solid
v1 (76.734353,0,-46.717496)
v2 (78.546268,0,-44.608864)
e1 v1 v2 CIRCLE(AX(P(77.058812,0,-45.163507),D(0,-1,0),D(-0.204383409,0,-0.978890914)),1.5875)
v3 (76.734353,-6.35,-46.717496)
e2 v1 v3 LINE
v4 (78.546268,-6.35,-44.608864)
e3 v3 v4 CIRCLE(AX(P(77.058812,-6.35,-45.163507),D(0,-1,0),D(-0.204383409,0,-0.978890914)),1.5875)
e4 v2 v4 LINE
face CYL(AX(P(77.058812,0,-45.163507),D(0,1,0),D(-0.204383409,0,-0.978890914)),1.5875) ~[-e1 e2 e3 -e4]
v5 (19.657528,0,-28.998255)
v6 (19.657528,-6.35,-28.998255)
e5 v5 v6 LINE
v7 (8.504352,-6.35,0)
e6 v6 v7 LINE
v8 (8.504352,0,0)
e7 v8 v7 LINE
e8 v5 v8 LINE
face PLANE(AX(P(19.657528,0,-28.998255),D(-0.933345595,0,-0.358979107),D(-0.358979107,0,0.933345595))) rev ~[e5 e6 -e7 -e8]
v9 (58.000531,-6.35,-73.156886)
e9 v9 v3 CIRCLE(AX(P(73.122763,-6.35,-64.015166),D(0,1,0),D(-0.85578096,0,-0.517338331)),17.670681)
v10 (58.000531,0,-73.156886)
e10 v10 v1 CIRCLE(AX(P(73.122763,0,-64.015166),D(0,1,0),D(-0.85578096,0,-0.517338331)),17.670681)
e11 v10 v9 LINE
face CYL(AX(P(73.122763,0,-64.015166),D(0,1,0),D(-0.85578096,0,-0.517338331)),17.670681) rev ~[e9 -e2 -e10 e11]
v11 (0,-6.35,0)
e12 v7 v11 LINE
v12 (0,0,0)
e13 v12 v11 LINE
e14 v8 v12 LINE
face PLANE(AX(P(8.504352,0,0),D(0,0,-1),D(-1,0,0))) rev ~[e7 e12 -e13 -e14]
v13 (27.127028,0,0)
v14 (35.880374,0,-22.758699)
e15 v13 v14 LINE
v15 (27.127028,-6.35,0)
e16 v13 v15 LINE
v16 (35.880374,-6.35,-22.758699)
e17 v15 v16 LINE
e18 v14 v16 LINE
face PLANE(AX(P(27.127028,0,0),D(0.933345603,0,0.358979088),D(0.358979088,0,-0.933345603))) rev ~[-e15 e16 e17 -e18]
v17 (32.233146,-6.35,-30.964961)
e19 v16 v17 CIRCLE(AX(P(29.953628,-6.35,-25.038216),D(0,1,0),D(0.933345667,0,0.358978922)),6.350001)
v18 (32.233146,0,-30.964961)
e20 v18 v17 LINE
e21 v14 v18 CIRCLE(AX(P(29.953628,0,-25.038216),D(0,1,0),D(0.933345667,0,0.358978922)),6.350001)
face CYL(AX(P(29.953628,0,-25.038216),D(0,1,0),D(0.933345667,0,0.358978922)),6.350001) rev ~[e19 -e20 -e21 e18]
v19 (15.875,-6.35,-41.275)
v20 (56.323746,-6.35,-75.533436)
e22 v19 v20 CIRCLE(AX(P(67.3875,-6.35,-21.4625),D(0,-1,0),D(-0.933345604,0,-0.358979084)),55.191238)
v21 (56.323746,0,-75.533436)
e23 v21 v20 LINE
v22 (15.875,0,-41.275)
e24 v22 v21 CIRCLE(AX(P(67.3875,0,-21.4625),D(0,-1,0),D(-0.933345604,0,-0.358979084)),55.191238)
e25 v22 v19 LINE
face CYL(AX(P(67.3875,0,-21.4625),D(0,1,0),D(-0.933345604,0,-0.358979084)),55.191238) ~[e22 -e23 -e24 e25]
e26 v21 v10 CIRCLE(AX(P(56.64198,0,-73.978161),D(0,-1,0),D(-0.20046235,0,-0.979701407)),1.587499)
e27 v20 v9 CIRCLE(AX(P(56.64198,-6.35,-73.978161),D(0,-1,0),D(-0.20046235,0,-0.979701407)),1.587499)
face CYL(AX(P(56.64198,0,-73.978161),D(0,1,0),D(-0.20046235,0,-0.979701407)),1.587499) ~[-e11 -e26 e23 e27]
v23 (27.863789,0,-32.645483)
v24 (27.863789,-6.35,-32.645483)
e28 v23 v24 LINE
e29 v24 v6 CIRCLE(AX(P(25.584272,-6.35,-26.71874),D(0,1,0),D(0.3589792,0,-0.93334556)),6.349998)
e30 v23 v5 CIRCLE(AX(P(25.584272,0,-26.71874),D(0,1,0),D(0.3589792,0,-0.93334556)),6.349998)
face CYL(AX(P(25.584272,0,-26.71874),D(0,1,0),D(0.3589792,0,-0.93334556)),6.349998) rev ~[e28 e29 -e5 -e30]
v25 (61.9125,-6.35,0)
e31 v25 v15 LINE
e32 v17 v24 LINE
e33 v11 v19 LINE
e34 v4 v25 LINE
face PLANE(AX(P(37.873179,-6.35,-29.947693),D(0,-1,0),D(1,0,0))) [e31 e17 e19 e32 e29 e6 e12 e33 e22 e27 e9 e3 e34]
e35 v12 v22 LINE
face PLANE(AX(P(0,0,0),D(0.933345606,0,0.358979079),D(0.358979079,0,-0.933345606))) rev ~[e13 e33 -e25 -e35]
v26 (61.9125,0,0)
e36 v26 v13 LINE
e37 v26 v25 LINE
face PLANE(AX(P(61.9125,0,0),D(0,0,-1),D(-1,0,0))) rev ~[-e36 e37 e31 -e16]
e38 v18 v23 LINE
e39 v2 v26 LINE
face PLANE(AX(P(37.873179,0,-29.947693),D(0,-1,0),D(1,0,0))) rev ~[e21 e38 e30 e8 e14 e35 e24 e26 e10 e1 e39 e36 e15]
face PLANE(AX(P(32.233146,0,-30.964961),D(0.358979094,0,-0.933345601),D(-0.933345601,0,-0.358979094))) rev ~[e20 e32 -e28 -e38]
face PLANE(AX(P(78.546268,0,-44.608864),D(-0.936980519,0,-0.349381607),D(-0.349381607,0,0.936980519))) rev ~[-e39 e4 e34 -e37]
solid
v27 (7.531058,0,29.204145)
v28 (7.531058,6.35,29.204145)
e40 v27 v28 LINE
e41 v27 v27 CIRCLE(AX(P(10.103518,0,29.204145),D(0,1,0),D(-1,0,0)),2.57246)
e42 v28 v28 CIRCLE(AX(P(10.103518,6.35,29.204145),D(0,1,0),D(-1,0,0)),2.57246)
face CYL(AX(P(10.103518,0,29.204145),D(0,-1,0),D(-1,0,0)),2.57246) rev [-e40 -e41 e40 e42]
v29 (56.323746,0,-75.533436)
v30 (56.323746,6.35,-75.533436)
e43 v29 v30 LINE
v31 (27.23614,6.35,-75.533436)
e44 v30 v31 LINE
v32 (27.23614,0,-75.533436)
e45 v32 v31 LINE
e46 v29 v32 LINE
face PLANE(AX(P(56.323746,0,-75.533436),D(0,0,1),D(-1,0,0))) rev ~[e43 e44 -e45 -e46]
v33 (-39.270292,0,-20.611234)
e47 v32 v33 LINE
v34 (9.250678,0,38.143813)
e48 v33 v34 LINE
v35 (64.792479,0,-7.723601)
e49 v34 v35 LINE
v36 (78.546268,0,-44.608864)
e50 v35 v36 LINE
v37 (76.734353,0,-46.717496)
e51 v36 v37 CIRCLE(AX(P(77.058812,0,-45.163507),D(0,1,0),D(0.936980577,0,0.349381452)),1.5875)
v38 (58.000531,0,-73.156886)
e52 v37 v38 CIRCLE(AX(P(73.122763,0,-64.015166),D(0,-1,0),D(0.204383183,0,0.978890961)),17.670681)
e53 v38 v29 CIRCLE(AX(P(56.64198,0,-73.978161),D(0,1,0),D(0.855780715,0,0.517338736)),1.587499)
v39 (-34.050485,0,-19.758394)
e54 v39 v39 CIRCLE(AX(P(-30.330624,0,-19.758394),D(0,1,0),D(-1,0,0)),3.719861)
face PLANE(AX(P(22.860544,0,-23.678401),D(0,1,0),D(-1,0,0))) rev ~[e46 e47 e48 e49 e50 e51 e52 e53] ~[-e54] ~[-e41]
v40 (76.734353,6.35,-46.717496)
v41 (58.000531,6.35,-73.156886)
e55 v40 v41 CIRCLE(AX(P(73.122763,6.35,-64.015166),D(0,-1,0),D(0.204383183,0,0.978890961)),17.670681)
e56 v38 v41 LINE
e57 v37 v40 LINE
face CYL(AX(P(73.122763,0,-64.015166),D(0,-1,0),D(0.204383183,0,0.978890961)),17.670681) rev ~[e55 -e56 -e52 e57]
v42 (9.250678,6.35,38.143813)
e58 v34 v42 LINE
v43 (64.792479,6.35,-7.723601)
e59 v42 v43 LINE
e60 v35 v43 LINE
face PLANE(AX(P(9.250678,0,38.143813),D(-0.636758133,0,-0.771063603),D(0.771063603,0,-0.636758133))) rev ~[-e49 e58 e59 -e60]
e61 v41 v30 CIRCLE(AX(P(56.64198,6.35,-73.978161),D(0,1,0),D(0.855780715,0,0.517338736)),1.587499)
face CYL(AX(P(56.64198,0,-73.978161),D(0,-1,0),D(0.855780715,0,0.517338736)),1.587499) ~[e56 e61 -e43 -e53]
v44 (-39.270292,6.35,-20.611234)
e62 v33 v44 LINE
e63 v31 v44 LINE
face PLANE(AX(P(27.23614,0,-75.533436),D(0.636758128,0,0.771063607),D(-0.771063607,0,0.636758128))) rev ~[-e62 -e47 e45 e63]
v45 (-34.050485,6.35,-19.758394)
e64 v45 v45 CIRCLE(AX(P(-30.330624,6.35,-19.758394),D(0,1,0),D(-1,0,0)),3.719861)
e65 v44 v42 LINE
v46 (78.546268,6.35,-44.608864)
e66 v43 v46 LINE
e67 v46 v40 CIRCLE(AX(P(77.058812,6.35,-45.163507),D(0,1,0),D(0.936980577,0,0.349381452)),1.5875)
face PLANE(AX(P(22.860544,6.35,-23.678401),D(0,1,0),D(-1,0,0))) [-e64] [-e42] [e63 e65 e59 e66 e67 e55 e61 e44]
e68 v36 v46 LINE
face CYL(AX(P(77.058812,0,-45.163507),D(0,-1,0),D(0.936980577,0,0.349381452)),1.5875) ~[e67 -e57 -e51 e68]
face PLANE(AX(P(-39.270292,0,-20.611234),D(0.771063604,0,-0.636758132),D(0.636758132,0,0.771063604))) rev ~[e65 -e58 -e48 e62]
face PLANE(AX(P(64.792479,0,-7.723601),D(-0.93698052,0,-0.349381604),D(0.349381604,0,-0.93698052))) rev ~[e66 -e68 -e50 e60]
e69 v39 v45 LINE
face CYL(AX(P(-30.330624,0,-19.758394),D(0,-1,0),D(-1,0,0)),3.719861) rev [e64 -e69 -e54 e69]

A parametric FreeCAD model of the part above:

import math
import FreeCAD as App
import Part
import Sketcher
Q = App.Units.Quantity

doc = App.newDocument("Part")
body = doc.addObject("PartDesign::Body", "Body")

sketch1 = doc.addObject("Sketcher::SketchObject", "Sketch")
body.addObject(sketch1)
sketch1.AttachmentSupport = (doc.XZ_Plane, [""])
sketch1.MapMode = "FlatFace"
sketch1.addGeometry([
    Part.LineSegment(App.Vector(8.5, 0, 0), App.Vector(0, 0, 0)),
    Part.LineSegment(App.Vector(0, 0, 0), App.Vector(15.9, -41.3, 0)),
    Part.ArcOfCircle(Part.Circle(App.Vector(67.4, -21.5, 0), App.Vector(0, 0, 1), 55.2), math.radians(-159), math.radians(-102)),
    Part.ArcOfCircle(Part.Circle(App.Vector(56.6, -74, 0), App.Vector(0, 0, 1), 1.6), math.radians(-102), math.radians(31)),
    Part.ArcOfCircle(Part.Circle(App.Vector(73.1, -64, 0), App.Vector(0, 0, 1), 17.7), math.radians(78), math.radians(211)),
    Part.ArcOfCircle(Part.Circle(App.Vector(77.1, -45.2, 0), App.Vector(0, 0, 1), 1.6), math.radians(-102), math.radians(20)),
    Part.LineSegment(App.Vector(78.5, -44.6, 0), App.Vector(61.9, 0, 0)),
    Part.LineSegment(App.Vector(61.9, 0, 0), App.Vector(27.1, 0, 0)),
    Part.LineSegment(App.Vector(27.1, 0, 0), App.Vector(35.9, -22.8, 0)),
    Part.ArcOfCircle(Part.Circle(App.Vector(30, -25, 0), App.Vector(0, 0, 1), 6.4), math.radians(-69), math.radians(21)),
    Part.LineSegment(App.Vector(32.2, -31, 0), App.Vector(27.9, -32.6, 0)),
    Part.ArcOfCircle(Part.Circle(App.Vector(25.6, -26.7, 0), App.Vector(0, 0, 1), 6.3), math.radians(-159), math.radians(-69)),
    Part.LineSegment(App.Vector(19.7, -29, 0), App.Vector(8.5, 0, 0)),
], False)
sketch1.addConstraint([
    Sketcher.Constraint("Coincident", 0, 2, 1, 1),
    Sketcher.Constraint("Tangent", 1, 2, 2, 1),
    Sketcher.Constraint("Tangent", 2, 2, 3, 1),
    Sketcher.Constraint("Tangent", 3, 2, 4, 2),
    Sketcher.Constraint("Tangent", 4, 1, 5, 1),
    Sketcher.Constraint("Tangent", 5, 2, 6, 1),
    Sketcher.Constraint("Coincident", 6, 2, 7, 1),
    Sketcher.Constraint("Coincident", 7, 2, 8, 1),
    Sketcher.Constraint("Tangent", 8, 2, 9, 2),
    Sketcher.Constraint("Tangent", 9, 1, 10, 1),
    Sketcher.Constraint("Tangent", 10, 2, 11, 2),
    Sketcher.Constraint("Tangent", 11, 1, 12, 1),
    Sketcher.Constraint("Coincident", 12, 2, 0, 1),
    Sketcher.Constraint("Horizontal", 0),
    Sketcher.Constraint("Horizontal", 7),
    Sketcher.Constraint("Coincident", 0, 2, -1, 1),
    Sketcher.Constraint("Equal", 3, 5),
    Sketcher.Constraint("PointOnObject", 6, 2, -1),
    Sketcher.Constraint("Parallel", 1, 8),
    Sketcher.Constraint("Perpendicular", 8, 10),
    Sketcher.Constraint("Perpendicular", 10, 12),
    Sketcher.Constraint("Radius", 9, Q("0.25 in")),
    Sketcher.Constraint("Radius", 11, Q("0.2499999 in")),
    Sketcher.Constraint("Radius", 3, Q("0.0625 in")),
    Sketcher.Constraint("Distance", 8, Q("0.96 in")),
    Sketcher.Constraint("DistanceX", -1, 1, 1, 2, Q("0.625 in")),
    Sketcher.Constraint("DistanceY", 1, 2, -1, 1, Q("1.625 in")),
    Sketcher.Constraint("DistanceX", -1, 1, 6, 2, Q("2.4375 in")),
    Sketcher.Constraint("Radius", 2, Q("55.191238 mm")),
    Sketcher.Constraint("Radius", 4, Q("17.670681 mm")),
    Sketcher.Constraint("DistanceY", 4, 3, 5, 2, Q("19.406302 mm")),
    Sketcher.Constraint("DistanceX", 11, 1, 9, 3, Q("10.2961 mm")),
    Sketcher.Constraint("Distance", 6, Q("47.609169 mm")),
    Sketcher.Constraint("DistanceX", 0, 2, 0, 1, Q("8.504352 mm")),
    Sketcher.Constraint("DistanceX", -1, 1, 3, 3, Q("56.64198 mm")),
])
pad1 = doc.addObject("PartDesign::Pad", "Pad")
body.addObject(pad1)
pad1.Profile = sketch1
pad1.Length = Q("0.25 in")
body2 = doc.addObject("PartDesign::Body", "Body001")

sketch2 = doc.addObject("Sketcher::SketchObject", "Sketch001")
body2.addObject(sketch2)
sketch2.AttachmentSupport = (doc.getObject("XZ_Plane001"), [""])
sketch2.MapMode = "FlatFace"
sketch2.addGeometry([
    Part.ArcOfCircle(Part.Circle(App.Vector(77.1, -45.2, 0), App.Vector(0, 0, 1), 1.6), math.radians(-102), math.radians(20)),
    Part.ArcOfCircle(Part.Circle(App.Vector(73.1, -64, 0), App.Vector(0, 0, 1), 17.7), math.radians(78), math.radians(211)),
    Part.ArcOfCircle(Part.Circle(App.Vector(56.6, -74, 0), App.Vector(0, 0, 1), 1.6), math.radians(-102), math.radians(31)),
    Part.LineSegment(App.Vector(56.3, -75.5, 0), App.Vector(27.2, -75.5, 0)),
    Part.LineSegment(App.Vector(27.2, -75.5, 0), App.Vector(-39.3, -20.6, 0)),
    Part.LineSegment(App.Vector(-39.3, -20.6, 0), App.Vector(9.3, 38.1, 0)),
    Part.LineSegment(App.Vector(9.3, 38.1, 0), App.Vector(64.8, -7.7, 0)),
    Part.LineSegment(App.Vector(64.8, -7.7, 0), App.Vector(78.5, -44.6, 0)),
    Part.Circle(App.Vector(-30.3, -19.8, 0), App.Vector(0, 0, 1), 3.7),
    Part.Circle(App.Vector(10.1, 29.2, 0), App.Vector(0, 0, 1), 2.6),
], False)
sketch2.addConstraint([
    Sketcher.Constraint("Tangent", 0, 1, 1, 1),
    Sketcher.Constraint("Tangent", 1, 2, 2, 2),
    Sketcher.Constraint("Coincident", 2, 1, 3, 1),
    Sketcher.Constraint("Coincident", 3, 2, 4, 1),
    Sketcher.Constraint("Coincident", 4, 2, 5, 1),
    Sketcher.Constraint("Coincident", 5, 2, 6, 1),
    Sketcher.Constraint("Coincident", 6, 2, 7, 1),
    Sketcher.Constraint("Tangent", 7, 2, 0, 2),
    Sketcher.Constraint("Horizontal", 3),
    Sketcher.Constraint("Equal", 0, 2),
    Sketcher.Constraint("Perpendicular", 4, 5),
    Sketcher.Constraint("Perpendicular", 5, 6),
    Sketcher.Constraint("Distance", 5, Q("3 in")),
    Sketcher.Constraint("Radius", 0, Q("0.0625 in")),
    Sketcher.Constraint("Diameter", 8, Q("7.439722 mm")),
    Sketcher.Constraint("Diameter", 9, Q("5.14492 mm")),
    Sketcher.Constraint("Radius", 1, Q("17.670681 mm")),
    Sketcher.Constraint("DistanceX", -1, 1, 5, 2, Q("0.3641999 in")),
    Sketcher.Constraint("DistanceY", 6, 2, -1, 1, Q("7.723601 mm")),
    Sketcher.Constraint("DistanceY", 2, 1, 4, 2, Q("54.922202 mm")),
    Sketcher.Constraint("DistanceY", 1, 3, 7, 2, Q("19.406302 mm")),
    Sketcher.Constraint("Distance", 6, Q("72.03271 mm")),
    Sketcher.Constraint("DistanceX", 3, 2, 3, 1, Q("29.087606 mm")),
    Sketcher.Constraint("DistanceX", -1, 1, 0, 3, Q("77.058812 mm")),
    Sketcher.Constraint("DistanceX", -1, 1, 2, 3, Q("56.64198 mm")),
    Sketcher.Constraint("DistanceY", 2, 3, -1, 1, Q("73.978161 mm")),
    Sketcher.Constraint("DistanceY", 1, 3, 8, 3, Q("44.256772 mm")),
    Sketcher.Constraint("DistanceY", 8, 3, 9, 3, Q("48.962539 mm")),
    Sketcher.Constraint("DistanceX", 9, 3, 2, 3, Q("46.538462 mm")),
    Sketcher.Constraint("DistanceX", 8, 3, -1, 1, Q("30.330624 mm")),
])
pad2 = doc.addObject("PartDesign::Pad", "Pad001")
body2.addObject(pad2)
pad2.Profile = sketch2
pad2.Length = Q("0.25 in")
pad2.Reversed = True

doc.recompute()
